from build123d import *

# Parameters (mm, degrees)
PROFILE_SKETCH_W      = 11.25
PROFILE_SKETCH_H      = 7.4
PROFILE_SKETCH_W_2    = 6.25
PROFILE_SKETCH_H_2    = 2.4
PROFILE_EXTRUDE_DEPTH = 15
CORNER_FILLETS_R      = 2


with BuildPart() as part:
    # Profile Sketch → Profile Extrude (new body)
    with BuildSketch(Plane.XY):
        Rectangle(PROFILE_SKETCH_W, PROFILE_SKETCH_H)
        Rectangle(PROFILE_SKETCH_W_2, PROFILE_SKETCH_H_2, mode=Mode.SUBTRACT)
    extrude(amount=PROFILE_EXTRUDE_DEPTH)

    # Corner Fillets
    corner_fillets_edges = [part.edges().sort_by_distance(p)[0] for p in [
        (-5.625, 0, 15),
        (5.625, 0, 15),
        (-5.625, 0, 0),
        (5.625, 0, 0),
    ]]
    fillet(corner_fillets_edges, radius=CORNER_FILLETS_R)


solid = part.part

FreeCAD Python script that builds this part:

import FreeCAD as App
import Part
import Sketcher

V = App.Vector
Q = App.Units.Quantity


def edges_at(feature, points):
    """Names of the edges that pass closest to the given points."""
    edges = feature.Shape.Edges
    near = lambda p: min(range(len(edges)), key=lambda i: edges[i].distToShape(Part.Vertex(*p))[0])
    return sorted({f"Edge{near(p) + 1}" for p in points})


def add_polygon(sketch, points):
    """Adds a closed chain of lines whose ends are joined by coincident constraints."""
    first, n = sketch.GeometryCount, len(points)
    for a, b in zip(points, points[1:] + points[:1]):
        sketch.addGeometry(Part.LineSegment(App.Vector(*a, 0), App.Vector(*b, 0)), False)
    for i in range(n):
        sketch.addConstraint(Sketcher.Constraint("Coincident", first + i, 2, first + (i + 1) % n, 1))

doc = App.newDocument("Part")
body = doc.addObject("PartDesign::Body", "Body")

sketch1 = body.newObject("Sketcher::SketchObject", "Sketch")
sketch1.AttachmentSupport = (doc.getObject("XY_Plane"), [""])
sketch1.MapMode = "FlatFace"
add_polygon(sketch1, [(-5.6, 3.7), (-5.6, -3.7), (5.6, -3.7), (5.6, 3.7)])
add_polygon(sketch1, [(3.1, -1.2), (-3.1, -1.2), (-3.1, 1.2), (3.1, 1.2)])
sketch1.addConstraint([
    Sketcher.Constraint("Vertical", 0),
    Sketcher.Constraint("Horizontal", 1),
    Sketcher.Constraint("Vertical", 2),
    Sketcher.Constraint("Horizontal", 3),
    Sketcher.Constraint("Horizontal", 4),
    Sketcher.Constraint("Vertical", 5),
    Sketcher.Constraint("Horizontal", 6),
    Sketcher.Constraint("Vertical", 7),
    Sketcher.Constraint("Symmetric", 0, 2, 2, 2, -1, 1),
    Sketcher.Constraint("Symmetric", 4, 2, 6, 2, -1, 1),
    Sketcher.Constraint("DistanceY", 0, 2, 0, 1, Q("7.4 mm")),
    Sketcher.Constraint("DistanceY", 5, 1, 5, 2, Q("2.4 mm")),
    Sketcher.Constraint("DistanceX", 1, 1, 1, 2, Q("11.25 mm")),
    Sketcher.Constraint("DistanceX", 4, 2, 4, 1, Q("6.25 mm")),
])
pad1 = body.newObject("PartDesign::Pad", "Pad")
pad1.Profile = sketch1
pad1.Length = 15
doc.recompute()

fillet = body.newObject("PartDesign::Fillet", "Fillet")
fillet.Base = (pad1, edges_at(pad1, [
    (-5.625, 0, 15),
    (5.625, 0, 15),
    (-5.625, 0, 0),
    (5.625, 0, 0),
]))
fillet.Radius = 2

doc.recompute()
